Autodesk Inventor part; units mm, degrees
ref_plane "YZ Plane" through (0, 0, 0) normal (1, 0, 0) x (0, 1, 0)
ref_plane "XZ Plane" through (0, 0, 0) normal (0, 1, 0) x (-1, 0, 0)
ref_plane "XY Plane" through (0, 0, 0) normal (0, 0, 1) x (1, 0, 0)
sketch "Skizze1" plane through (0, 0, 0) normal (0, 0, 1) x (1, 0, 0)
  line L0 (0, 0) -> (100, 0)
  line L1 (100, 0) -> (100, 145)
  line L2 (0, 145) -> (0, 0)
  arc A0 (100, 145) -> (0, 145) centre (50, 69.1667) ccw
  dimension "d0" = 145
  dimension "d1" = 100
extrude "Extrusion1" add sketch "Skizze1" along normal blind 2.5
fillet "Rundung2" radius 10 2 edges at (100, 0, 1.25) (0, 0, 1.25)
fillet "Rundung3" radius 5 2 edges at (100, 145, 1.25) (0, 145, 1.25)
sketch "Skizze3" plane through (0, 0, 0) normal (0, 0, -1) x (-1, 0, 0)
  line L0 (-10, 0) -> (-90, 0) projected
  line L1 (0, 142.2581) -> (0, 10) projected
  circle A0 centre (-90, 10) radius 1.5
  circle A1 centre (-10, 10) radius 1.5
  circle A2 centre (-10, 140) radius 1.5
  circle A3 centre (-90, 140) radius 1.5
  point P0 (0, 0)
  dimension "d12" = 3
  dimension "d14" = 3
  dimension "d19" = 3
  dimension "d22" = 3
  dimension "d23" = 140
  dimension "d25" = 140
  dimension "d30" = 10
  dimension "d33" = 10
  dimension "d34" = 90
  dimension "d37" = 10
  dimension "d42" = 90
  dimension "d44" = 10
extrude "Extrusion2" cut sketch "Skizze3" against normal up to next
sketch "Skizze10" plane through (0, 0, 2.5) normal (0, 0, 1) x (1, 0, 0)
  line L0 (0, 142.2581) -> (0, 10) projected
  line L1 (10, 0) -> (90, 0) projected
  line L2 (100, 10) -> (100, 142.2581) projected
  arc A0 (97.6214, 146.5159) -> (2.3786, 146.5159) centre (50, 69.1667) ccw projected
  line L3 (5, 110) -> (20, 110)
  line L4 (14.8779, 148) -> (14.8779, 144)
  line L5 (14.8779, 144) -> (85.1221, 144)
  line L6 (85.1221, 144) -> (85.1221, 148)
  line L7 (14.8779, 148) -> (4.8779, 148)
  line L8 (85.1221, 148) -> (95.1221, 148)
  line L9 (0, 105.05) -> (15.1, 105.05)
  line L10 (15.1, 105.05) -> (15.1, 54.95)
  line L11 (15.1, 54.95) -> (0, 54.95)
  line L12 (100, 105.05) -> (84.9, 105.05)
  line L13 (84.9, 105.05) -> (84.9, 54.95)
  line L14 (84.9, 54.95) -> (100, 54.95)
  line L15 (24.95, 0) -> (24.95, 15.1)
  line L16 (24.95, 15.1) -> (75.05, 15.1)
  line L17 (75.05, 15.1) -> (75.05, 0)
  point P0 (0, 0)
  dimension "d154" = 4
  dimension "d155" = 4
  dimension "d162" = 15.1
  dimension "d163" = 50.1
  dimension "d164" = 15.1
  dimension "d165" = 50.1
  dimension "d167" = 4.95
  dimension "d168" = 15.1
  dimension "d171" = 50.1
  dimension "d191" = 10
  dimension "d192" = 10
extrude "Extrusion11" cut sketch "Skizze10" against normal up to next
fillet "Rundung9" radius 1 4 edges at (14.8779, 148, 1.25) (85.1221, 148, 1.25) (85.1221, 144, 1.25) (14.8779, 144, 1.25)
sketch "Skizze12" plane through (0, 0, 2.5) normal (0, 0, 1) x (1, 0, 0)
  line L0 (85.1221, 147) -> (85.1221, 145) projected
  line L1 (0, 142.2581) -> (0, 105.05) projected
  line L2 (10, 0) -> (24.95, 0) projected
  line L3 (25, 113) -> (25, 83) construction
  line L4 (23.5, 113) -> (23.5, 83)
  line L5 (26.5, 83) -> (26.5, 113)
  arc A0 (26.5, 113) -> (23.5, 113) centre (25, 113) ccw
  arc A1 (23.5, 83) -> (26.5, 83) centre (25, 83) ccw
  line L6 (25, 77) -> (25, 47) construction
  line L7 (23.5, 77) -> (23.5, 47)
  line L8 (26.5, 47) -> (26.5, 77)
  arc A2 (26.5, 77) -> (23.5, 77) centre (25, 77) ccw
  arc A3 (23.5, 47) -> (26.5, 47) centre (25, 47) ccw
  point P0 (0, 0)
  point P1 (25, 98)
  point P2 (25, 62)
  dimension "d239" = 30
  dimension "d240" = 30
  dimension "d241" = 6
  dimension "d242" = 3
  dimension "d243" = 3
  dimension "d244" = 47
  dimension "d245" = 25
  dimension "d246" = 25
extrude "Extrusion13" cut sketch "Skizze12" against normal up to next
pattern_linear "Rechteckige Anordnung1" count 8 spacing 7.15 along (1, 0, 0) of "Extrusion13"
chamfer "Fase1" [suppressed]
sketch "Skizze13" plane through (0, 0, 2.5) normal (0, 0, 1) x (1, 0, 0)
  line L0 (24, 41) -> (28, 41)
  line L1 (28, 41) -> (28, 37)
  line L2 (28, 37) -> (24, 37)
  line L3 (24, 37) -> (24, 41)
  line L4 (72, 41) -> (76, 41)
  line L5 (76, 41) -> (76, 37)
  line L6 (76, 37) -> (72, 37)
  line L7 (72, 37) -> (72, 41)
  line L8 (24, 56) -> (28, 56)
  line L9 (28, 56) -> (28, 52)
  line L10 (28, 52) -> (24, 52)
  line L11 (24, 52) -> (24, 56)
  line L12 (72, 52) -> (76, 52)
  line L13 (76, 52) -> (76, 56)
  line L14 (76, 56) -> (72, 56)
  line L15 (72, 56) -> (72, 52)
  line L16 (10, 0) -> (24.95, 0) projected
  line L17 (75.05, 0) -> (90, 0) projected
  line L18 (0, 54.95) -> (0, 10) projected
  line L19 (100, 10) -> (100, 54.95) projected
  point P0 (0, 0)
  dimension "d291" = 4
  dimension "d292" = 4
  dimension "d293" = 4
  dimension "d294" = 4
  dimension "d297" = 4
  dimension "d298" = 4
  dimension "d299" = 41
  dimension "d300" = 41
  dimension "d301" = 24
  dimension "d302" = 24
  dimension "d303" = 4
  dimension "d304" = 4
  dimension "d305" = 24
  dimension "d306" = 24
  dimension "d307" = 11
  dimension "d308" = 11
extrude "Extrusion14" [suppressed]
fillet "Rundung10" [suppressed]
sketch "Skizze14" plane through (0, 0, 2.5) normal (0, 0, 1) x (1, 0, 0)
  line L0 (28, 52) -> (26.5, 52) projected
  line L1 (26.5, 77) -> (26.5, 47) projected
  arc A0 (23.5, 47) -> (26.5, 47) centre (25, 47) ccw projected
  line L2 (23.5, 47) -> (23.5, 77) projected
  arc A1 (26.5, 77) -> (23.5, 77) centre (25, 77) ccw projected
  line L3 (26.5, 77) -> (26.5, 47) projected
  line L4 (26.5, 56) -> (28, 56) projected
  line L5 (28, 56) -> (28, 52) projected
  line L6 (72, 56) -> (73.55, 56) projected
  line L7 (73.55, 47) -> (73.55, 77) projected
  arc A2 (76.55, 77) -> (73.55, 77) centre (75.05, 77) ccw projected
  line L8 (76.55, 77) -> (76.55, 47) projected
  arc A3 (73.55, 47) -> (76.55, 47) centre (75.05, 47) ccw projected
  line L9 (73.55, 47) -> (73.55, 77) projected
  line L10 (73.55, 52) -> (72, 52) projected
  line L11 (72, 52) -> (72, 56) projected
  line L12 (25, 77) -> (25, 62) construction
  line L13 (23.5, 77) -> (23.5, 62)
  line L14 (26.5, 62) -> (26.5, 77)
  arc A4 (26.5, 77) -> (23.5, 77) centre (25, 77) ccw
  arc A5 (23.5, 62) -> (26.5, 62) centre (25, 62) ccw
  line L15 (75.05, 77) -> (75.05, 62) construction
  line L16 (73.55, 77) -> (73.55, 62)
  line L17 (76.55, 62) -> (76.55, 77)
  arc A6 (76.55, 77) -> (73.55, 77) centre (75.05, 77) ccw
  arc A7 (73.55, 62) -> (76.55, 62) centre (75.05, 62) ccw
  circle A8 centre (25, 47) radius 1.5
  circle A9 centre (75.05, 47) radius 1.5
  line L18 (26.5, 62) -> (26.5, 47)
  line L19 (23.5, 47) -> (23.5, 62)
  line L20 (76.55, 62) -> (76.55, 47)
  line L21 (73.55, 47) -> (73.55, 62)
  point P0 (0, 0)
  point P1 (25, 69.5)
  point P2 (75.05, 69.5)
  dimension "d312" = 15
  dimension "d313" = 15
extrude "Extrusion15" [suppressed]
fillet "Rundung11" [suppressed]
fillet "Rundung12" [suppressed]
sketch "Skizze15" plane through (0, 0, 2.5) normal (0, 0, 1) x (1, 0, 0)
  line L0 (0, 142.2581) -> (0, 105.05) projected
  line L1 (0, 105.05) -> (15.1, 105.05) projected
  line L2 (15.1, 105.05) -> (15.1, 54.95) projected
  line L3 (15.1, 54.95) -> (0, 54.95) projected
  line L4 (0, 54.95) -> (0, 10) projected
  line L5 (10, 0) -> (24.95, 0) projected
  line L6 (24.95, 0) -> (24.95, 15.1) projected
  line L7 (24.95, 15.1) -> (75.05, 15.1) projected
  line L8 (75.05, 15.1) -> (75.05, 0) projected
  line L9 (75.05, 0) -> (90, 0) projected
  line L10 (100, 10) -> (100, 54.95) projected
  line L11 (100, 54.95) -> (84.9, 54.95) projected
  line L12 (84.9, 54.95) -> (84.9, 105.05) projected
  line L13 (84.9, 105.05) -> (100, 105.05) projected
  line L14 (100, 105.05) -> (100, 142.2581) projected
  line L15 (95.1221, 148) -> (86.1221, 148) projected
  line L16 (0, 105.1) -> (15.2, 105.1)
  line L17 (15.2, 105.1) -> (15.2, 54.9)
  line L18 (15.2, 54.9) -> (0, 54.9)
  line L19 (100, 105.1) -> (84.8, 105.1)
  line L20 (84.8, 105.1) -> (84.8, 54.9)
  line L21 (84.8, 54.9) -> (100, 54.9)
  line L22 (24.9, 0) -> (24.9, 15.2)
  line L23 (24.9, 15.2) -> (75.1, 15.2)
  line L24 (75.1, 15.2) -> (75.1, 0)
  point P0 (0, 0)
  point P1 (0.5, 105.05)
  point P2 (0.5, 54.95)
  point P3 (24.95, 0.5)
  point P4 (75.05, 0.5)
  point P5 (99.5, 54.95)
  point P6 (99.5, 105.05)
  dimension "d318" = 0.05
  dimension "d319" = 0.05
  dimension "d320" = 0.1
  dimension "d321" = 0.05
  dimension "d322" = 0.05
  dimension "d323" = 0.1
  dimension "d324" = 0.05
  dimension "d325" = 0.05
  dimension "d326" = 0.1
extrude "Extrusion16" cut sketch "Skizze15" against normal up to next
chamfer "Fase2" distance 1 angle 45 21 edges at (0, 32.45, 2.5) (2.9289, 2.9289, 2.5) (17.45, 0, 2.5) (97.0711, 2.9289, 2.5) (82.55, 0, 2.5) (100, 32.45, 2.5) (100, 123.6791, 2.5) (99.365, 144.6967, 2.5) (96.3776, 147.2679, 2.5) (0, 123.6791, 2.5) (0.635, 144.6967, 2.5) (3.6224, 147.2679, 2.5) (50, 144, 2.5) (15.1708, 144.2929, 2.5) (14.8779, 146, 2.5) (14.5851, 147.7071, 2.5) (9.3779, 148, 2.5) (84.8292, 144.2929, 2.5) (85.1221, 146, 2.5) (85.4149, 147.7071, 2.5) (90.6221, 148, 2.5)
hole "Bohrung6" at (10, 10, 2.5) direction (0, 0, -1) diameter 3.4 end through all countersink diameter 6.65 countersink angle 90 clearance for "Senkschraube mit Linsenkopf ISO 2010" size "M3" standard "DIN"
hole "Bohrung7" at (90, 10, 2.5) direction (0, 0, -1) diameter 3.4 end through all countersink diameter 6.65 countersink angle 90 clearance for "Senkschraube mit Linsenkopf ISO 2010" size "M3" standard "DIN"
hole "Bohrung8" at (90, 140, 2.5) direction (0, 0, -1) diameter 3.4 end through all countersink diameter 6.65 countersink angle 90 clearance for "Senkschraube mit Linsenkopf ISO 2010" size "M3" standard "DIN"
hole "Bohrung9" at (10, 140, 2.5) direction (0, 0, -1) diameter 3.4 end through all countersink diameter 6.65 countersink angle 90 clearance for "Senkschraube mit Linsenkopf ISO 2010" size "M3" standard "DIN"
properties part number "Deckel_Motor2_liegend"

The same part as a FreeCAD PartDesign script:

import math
import FreeCAD as App
import Part
import Sketcher
Q = App.Units.Quantity


def edges_at(feature, points):
    """Names of the edges that pass closest to the given points."""
    edges = feature.Shape.Edges
    near = lambda p: min(range(len(edges)), key=lambda i: edges[i].distToShape(Part.Vertex(*p))[0])
    return sorted({f"Edge{near(p) + 1}" for p in points})

doc = App.newDocument("Part")
params = doc.addObject("Spreadsheet::Sheet", "Params")
for row, (alias, value) in enumerate([
    ("sketch1_width", "100 mm"),
    ("sketch1_height", "145 mm"),
    ("pad1_length", "2.5 mm"),
    ("fillet_radius", "10 mm"),
    ("fillet2_radius", "5 mm"),
    ("sketch2_diameter", "3 mm"),
    ("pocket1_length", "2.5 mm"),
    ("sketch3_width", "10 mm"),
    ("sketch3_height", "4 mm"),
    ("sketch3_width2", "15.1 mm"),
    ("sketch3_width3", "50.1 mm"),
    ("fillet3_radius", "1 mm"),
    ("sketch4_radius", "1.5 mm"),
    ("sketch4_height", "30 mm"),
    ("linearpattern_pitch", "7.15 mm"),
    ("sketch5_width", "0.05 mm"),
    ("sketch5_width2", "15.2 mm"),
    ("sketch5_width3", "50.1 mm"),
    ("chamfer_size", "1 mm"),
    ("sketch6_diameter", "3.4 mm"),
    ("hole_diameter", "3.4 mm"),
    ("hole_csink_diameter", "6.65 mm"),
    ("sketch7_diameter", "3.4 mm"),
    ("hole2_diameter", "3.4 mm"),
    ("hole2_csink_diameter", "6.65 mm"),
    ("sketch8_diameter", "3.4 mm"),
    ("hole3_diameter", "3.4 mm"),
    ("hole3_csink_diameter", "6.65 mm"),
    ("sketch9_diameter", "3.4 mm"),
    ("hole4_diameter", "3.4 mm"),
    ("hole4_csink_diameter", "6.65 mm"),
], start=1):
    params.set(f"A{row}", alias)
    params.set(f"B{row}", "=" + value)
    params.setAlias(f"B{row}", alias)

body = doc.addObject("PartDesign::Body", "Body")

# Sketch on XY plane
sketch1 = body.newObject("Sketcher::SketchObject", "Sketch")
sketch1.AttachmentSupport = (doc.getObject("XY_Plane"), [""])
sketch1.MapMode = "FlatFace"
sketch1.addGeometry([
    Part.LineSegment(App.Vector(0, 145, 0), App.Vector(0, 0, 0)),
    Part.LineSegment(App.Vector(0, 0, 0), App.Vector(100, 0, 0)),
    Part.LineSegment(App.Vector(100, 0, 0), App.Vector(100, 145, 0)),
    Part.ArcOfCircle(Part.Circle(App.Vector(50, 69, 0), App.Vector(0, 0, 1), 91), math.radians(57), math.radians(123)),
], False)
sketch1.addConstraint([
    Sketcher.Constraint("Coincident", 0, 2, 1, 1),
    Sketcher.Constraint("Coincident", 1, 2, 2, 1),
    Sketcher.Constraint("Coincident", 2, 2, 3, 1),
    Sketcher.Constraint("Coincident", 3, 2, 0, 1),
    Sketcher.Constraint("Vertical", 0),
    Sketcher.Constraint("Horizontal", 1),
    Sketcher.Constraint("Vertical", 2),
    Sketcher.Constraint("Coincident", 0, 2, -1, 1),
    Sketcher.Constraint("Horizontal", 2, 2, 3, 2),
    Sketcher.Constraint("DistanceX", 1, 1, 1, 2, Q("100 mm")),
    Sketcher.Constraint("DistanceY", 0, 2, 0, 1, Q("145 mm")),
    Sketcher.Constraint("Radius", 3, Q("90.8333 mm")),
])
sketch1.setExpression("Constraints[9]", "Params.sketch1_width")
sketch1.setExpression("Constraints[10]", "Params.sketch1_height")
pad1 = body.newObject("PartDesign::Pad", "Pad")
pad1.Profile = sketch1
pad1.setExpression("Length", "Params.pad1_length")
doc.recompute()

fillet = body.newObject("PartDesign::Fillet", "Fillet")
fillet.Base = (pad1, edges_at(pad1, [(100, 0, 1.25), (0, 0, 1.25)]))
fillet.setExpression("Radius", "Params.fillet_radius")
doc.recompute()

fillet2 = body.newObject("PartDesign::Fillet", "Fillet001")
fillet2.Base = (fillet, edges_at(fillet, [(100, 145, 1.25), (0, 145, 1.25)]))
fillet2.setExpression("Radius", "Params.fillet2_radius")

# Sketch on XY plane
sketch2 = body.newObject("Sketcher::SketchObject", "Sketch001")
sketch2.AttachmentSupport = (doc.getObject("XY_Plane"), [""])
sketch2.MapMode = "FlatFace"
sketch2.addGeometry([
    Part.Circle(App.Vector(90, 10, 0), App.Vector(0, 0, 1), 1.5),
    Part.Circle(App.Vector(10, 10, 0), App.Vector(0, 0, 1), 1.5),
    Part.Circle(App.Vector(10, 140, 0), App.Vector(0, 0, 1), 1.5),
    Part.Circle(App.Vector(90, 140, 0), App.Vector(0, 0, 1), 1.5),
], False)
sketch2.addConstraint([
    Sketcher.Constraint("Equal", 0, 1),
    Sketcher.Constraint("Equal", 1, 2),
    Sketcher.Constraint("Equal", 2, 3),
    Sketcher.Constraint("Horizontal", 0, 3, 1, 3),
    Sketcher.Constraint("Horizontal", 2, 3, 3, 3),
    Sketcher.Constraint("Vertical", 1, 3, 2, 3),
    Sketcher.Constraint("Vertical", 0, 3, 3, 3),
    Sketcher.Constraint("Diameter", 0, Q("3 mm")),
    Sketcher.Constraint("DistanceX", -1, 1, 0, 3, Q("90 mm")),
    Sketcher.Constraint("DistanceY", -1, 1, 0, 3, Q("10 mm")),
    Sketcher.Constraint("DistanceX", -1, 1, 1, 3, Q("10 mm")),
    Sketcher.Constraint("DistanceY", -1, 1, 2, 3, Q("140 mm")),
])
sketch2.setExpression("Constraints[7]", "Params.sketch2_diameter")
pocket1 = body.newObject("PartDesign::Pocket", "Pocket")
pocket1.Profile = sketch2
pocket1.setExpression("Length", "Params.pocket1_length")
pocket1.Reversed = True

# Sketch on XY plane
sketch3 = body.newObject("Sketcher::SketchObject", "Sketch002")
sketch3.AttachmentSupport = (doc.getObject("XY_Plane"), [""])
sketch3.MapMode = "FlatFace"
sketch3.AttachmentOffset = App.Placement(App.Vector(0, 0, 2.5), App.Rotation())
sketch3.addGeometry([
    Part.LineSegment(App.Vector(15.1, 105, 0), App.Vector(0, 105, 0)),  # 0
    Part.LineSegment(App.Vector(0, 105, 0), App.Vector(0, 55, 0)),  # 1
    Part.LineSegment(App.Vector(0, 55, 0), App.Vector(15.1, 55, 0)),  # 2
    Part.LineSegment(App.Vector(15.1, 55, 0), App.Vector(15.1, 105, 0)),  # 3
    Part.LineSegment(App.Vector(24.9, 15.1, 0), App.Vector(24.9, 0, 0)),  # 4
    Part.LineSegment(App.Vector(24.9, 0, 0), App.Vector(75, 0, 0)),  # 5
    Part.LineSegment(App.Vector(75, 0, 0), App.Vector(75, 15.1, 0)),  # 6
    Part.LineSegment(App.Vector(75, 15.1, 0), App.Vector(24.9, 15.1, 0)),  # 7
    Part.LineSegment(App.Vector(84.9, 55, 0), App.Vector(100, 55, 0)),  # 8
    Part.LineSegment(App.Vector(100, 55, 0), App.Vector(100, 105, 0)),  # 9
    Part.LineSegment(App.Vector(100, 105, 0), App.Vector(84.9, 105, 0)),  # 10
    Part.LineSegment(App.Vector(84.9, 105, 0), App.Vector(84.9, 55, 0)),  # 11
    Part.LineSegment(App.Vector(85.1, 148, 0), App.Vector(95.1, 148, 0)),  # 12
    Part.ArcOfCircle(Part.Circle(App.Vector(50, 69.2, 0), App.Vector(0, 0, 1), 90.8), math.radians(60), math.radians(120)),  # 13
    Part.LineSegment(App.Vector(4.9, 148, 0), App.Vector(14.9, 148, 0)),  # 14
    Part.LineSegment(App.Vector(14.9, 148, 0), App.Vector(14.9, 144, 0)),  # 15
    Part.LineSegment(App.Vector(14.9, 144, 0), App.Vector(85.1, 144, 0)),  # 16
    Part.LineSegment(App.Vector(85.1, 144, 0), App.Vector(85.1, 148, 0)),  # 17
], False)
sketch3.addConstraint([
    Sketcher.Constraint("Coincident", 0, 2, 1, 1),
    Sketcher.Constraint("Coincident", 1, 2, 2, 1),
    Sketcher.Constraint("Coincident", 2, 2, 3, 1),
    Sketcher.Constraint("Coincident", 3, 2, 0, 1),
    Sketcher.Constraint("Coincident", 4, 2, 5, 1),
    Sketcher.Constraint("Coincident", 5, 2, 6, 1),
    Sketcher.Constraint("Coincident", 6, 2, 7, 1),
    Sketcher.Constraint("Coincident", 7, 2, 4, 1),
    Sketcher.Constraint("Coincident", 8, 2, 9, 1),
    Sketcher.Constraint("Coincident", 9, 2, 10, 1),
    Sketcher.Constraint("Coincident", 10, 2, 11, 1),
    Sketcher.Constraint("Coincident", 11, 2, 8, 1),
    Sketcher.Constraint("Coincident", 12, 2, 13, 1),
    Sketcher.Constraint("Coincident", 13, 2, 14, 1),
    Sketcher.Constraint("Coincident", 14, 2, 15, 1),
    Sketcher.Constraint("Coincident", 15, 2, 16, 1),
    Sketcher.Constraint("Coincident", 16, 2, 17, 1),
    Sketcher.Constraint("Coincident", 17, 2, 12, 1),
    Sketcher.Constraint("Horizontal", 0),
    Sketcher.Constraint("Vertical", 1),
    Sketcher.Constraint("Horizontal", 2),
    Sketcher.Constraint("Vertical", 3),
    Sketcher.Constraint("Vertical", 4),
    Sketcher.Constraint("Horizontal", 5),
    Sketcher.Constraint("Vertical", 6),
    Sketcher.Constraint("Horizontal", 7),
    Sketcher.Constraint("Horizontal", 8),
    Sketcher.Constraint("Vertical", 9),
    Sketcher.Constraint("Horizontal", 10),
    Sketcher.Constraint("Vertical", 11),
    Sketcher.Constraint("Horizontal", 12),
    Sketcher.Constraint("Horizontal", 14),
    Sketcher.Constraint("Vertical", 15),
    Sketcher.Constraint("Horizontal", 16),
    Sketcher.Constraint("Vertical", 17),
    Sketcher.Constraint("PointOnObject", 0, 2, -2),
    Sketcher.Constraint("PointOnObject", 4, 2, -1),
    Sketcher.Constraint("Horizontal", 2, 2, 8, 2),
    Sketcher.Constraint("Horizontal", 3, 2, 9, 2),
    Sketcher.Constraint("Horizontal", 12, 2, 13, 2),
    Sketcher.Constraint("Equal", 2, 8),
    Sketcher.Constraint("Equal", 12, 14),
    Sketcher.Constraint("Equal", 7, 1),
    Sketcher.Constraint("Equal", 10, 4),
    Sketcher.Constraint("DistanceX", 12, 1, 12, 2, Q("10 mm")),
    Sketcher.Constraint("DistanceY", 15, 2, 15, 1, Q("4 mm")),
    Sketcher.Constraint("DistanceX", 0, 2, 0, 1, Q("15.1 mm")),
    Sketcher.Constraint("DistanceX", 5, 1, 5, 2, Q("50.1 mm")),
    Sketcher.Constraint("DistanceX", -1, 1, 13, 3, Q("50 mm")),
    Sketcher.Constraint("DistanceX", -1, 1, 8, 2, Q("100 mm")),
    Sketcher.Constraint("DistanceY", -1, 1, 12, 2, Q("148 mm")),
    Sketcher.Constraint("Radius", 13, Q("90.8333 mm")),
    Sketcher.Constraint("DistanceY", -1, 1, 0, 2, Q("105.05 mm")),
    Sketcher.Constraint("DistanceX", -1, 1, 4, 2, Q("24.95 mm")),
    Sketcher.Constraint("DistanceX", 16, 1, 16, 2, Q("70.2442 mm")),
])
sketch3.setExpression("Constraints[44]", "Params.sketch3_width")
sketch3.setExpression("Constraints[45]", "Params.sketch3_height")
sketch3.setExpression("Constraints[46]", "Params.sketch3_width2")
sketch3.setExpression("Constraints[47]", "Params.sketch3_width3")
pocket2 = body.newObject("PartDesign::Pocket", "Pocket001")
pocket2.Profile = sketch3
pocket2.Type = "UpToFirst"
doc.recompute()

fillet3 = body.newObject("PartDesign::Fillet", "Fillet002")
fillet3.Base = (pocket2, edges_at(pocket2, [
    (14.878, 148, 1.25),
    (85.122, 148, 1.25),
    (85.122, 144, 1.25),
    (14.878, 144, 1.25),
]))
fillet3.setExpression("Radius", "Params.fillet3_radius")

# Sketch on XY plane
sketch4 = body.newObject("Sketcher::SketchObject", "Sketch003")
sketch4.AttachmentSupport = (doc.getObject("XY_Plane"), [""])
sketch4.MapMode = "FlatFace"
sketch4.AttachmentOffset = App.Placement(App.Vector(0, 0, 2.5), App.Rotation())
sketch4.addGeometry([
    Part.ArcOfCircle(Part.Circle(App.Vector(25, 113, 0), App.Vector(0, 0, 1), 1.5), math.radians(0), math.radians(180)),  # 0
    Part.LineSegment(App.Vector(23.5, 113, 0), App.Vector(23.5, 83, 0)),  # 1
    Part.ArcOfCircle(Part.Circle(App.Vector(25, 83, 0), App.Vector(0, 0, 1), 1.5), math.radians(180), math.radians(360)),  # 2
    Part.LineSegment(App.Vector(26.5, 83, 0), App.Vector(26.5, 113, 0)),  # 3
    Part.ArcOfCircle(Part.Circle(App.Vector(25, 77, 0), App.Vector(0, 0, 1), 1.5), math.radians(0), math.radians(180)),  # 4
    Part.LineSegment(App.Vector(23.5, 77, 0), App.Vector(23.5, 47, 0)),  # 5
    Part.ArcOfCircle(Part.Circle(App.Vector(25, 47, 0), App.Vector(0, 0, 1), 1.5), math.radians(180), math.radians(360)),  # 6
    Part.LineSegment(App.Vector(26.5, 47, 0), App.Vector(26.5, 77, 0)),  # 7
], False)
sketch4.addConstraint([
    Sketcher.Constraint("Tangent", 0, 2, 1, 1),
    Sketcher.Constraint("Tangent", 1, 2, 2, 1),
    Sketcher.Constraint("Tangent", 2, 2, 3, 1),
    Sketcher.Constraint("Tangent", 3, 2, 0, 1),
    Sketcher.Constraint("Tangent", 4, 2, 5, 1),
    Sketcher.Constraint("Tangent", 5, 2, 6, 1),
    Sketcher.Constraint("Tangent", 6, 2, 7, 1),
    Sketcher.Constraint("Tangent", 7, 2, 4, 1),
    Sketcher.Constraint("Vertical", 1),
    Sketcher.Constraint("Vertical", 3),
    Sketcher.Constraint("Vertical", 5),
    Sketcher.Constraint("Vertical", 7),
    Sketcher.Constraint("Equal", 2, 4),
    Sketcher.Constraint("Vertical", 2, 3, 4, 3),
    Sketcher.Constraint("Equal", 3, 5),
    Sketcher.Constraint("Radius", 0, Q("1.5 mm")),
    Sketcher.Constraint("DistanceY", 1, 2, 1, 1, Q("30 mm")),
    Sketcher.Constraint("DistanceX", -1, 1, 0, 3, Q("25 mm")),
    Sketcher.Constraint("DistanceY", -1, 1, 6, 3, Q("47 mm")),
    Sketcher.Constraint("DistanceY", 4, 3, 2, 3, Q("6 mm")),
])
sketch4.setExpression("Constraints[15]", "Params.sketch4_radius")
sketch4.setExpression("Constraints[16]", "Params.sketch4_height")
pocket3 = body.newObject("PartDesign::Pocket", "Pocket002")
pocket3.Profile = sketch4
pocket3.Type = "UpToFirst"
doc.recompute()

linearpattern = body.newObject("PartDesign::LinearPattern", "LinearPattern")
linearpattern.Originals = [pocket3]
linearpattern.Direction = (doc.getObject("X_Axis"), [""])
linearpattern.Mode = "offset"
linearpattern.setExpression("Offset", "Params.linearpattern_pitch")
linearpattern.Occurrences = 8
body.Tip = linearpattern

# Sketch on XY plane
sketch5 = body.newObject("Sketcher::SketchObject", "Sketch004")
sketch5.AttachmentSupport = (doc.getObject("XY_Plane"), [""])
sketch5.MapMode = "FlatFace"
sketch5.AttachmentOffset = App.Placement(App.Vector(0, 0, 2.5), App.Rotation())
sketch5.addGeometry([
    Part.LineSegment(App.Vector(15.2, 105.1, 0), App.Vector(0, 105.1, 0)),  # 0
    Part.LineSegment(App.Vector(0, 105.1, 0), App.Vector(0, 105.05, 0)),  # 1
    Part.LineSegment(App.Vector(0, 105.05, 0), App.Vector(15.1, 105.05, 0)),  # 2
    Part.LineSegment(App.Vector(15.1, 105.05, 0), App.Vector(15.1, 54.95, 0)),  # 3
    Part.LineSegment(App.Vector(15.1, 54.95, 0), App.Vector(0, 54.95, 0)),  # 4
    Part.LineSegment(App.Vector(0, 54.95, 0), App.Vector(0, 54.9, 0)),  # 5
    Part.LineSegment(App.Vector(0, 54.9, 0), App.Vector(15.2, 54.9, 0)),  # 6
    Part.LineSegment(App.Vector(15.2, 54.9, 0), App.Vector(15.2, 105.1, 0)),  # 7
    Part.LineSegment(App.Vector(24.9, 15.2, 0), App.Vector(24.9, 0, 0)),  # 8
    Part.LineSegment(App.Vector(24.9, 0, 0), App.Vector(24.95, 0, 0)),  # 9
    Part.LineSegment(App.Vector(24.95, 0, 0), App.Vector(24.95, 15.1, 0)),  # 10
    Part.LineSegment(App.Vector(24.95, 15.1, 0), App.Vector(75.05, 15.1, 0)),  # 11
    Part.LineSegment(App.Vector(75.05, 15.1, 0), App.Vector(75.05, 0, 0)),  # 12
    Part.LineSegment(App.Vector(75.05, 0, 0), App.Vector(75.1, 0, 0)),  # 13
    Part.LineSegment(App.Vector(75.1, 0, 0), App.Vector(75.1, 15.2, 0)),  # 14
    Part.LineSegment(App.Vector(75.1, 15.2, 0), App.Vector(24.9, 15.2, 0)),  # 15
    Part.LineSegment(App.Vector(84.8, 54.9, 0), App.Vector(100, 54.9, 0)),  # 16
    Part.LineSegment(App.Vector(100, 54.9, 0), App.Vector(100, 54.95, 0)),  # 17
    Part.LineSegment(App.Vector(100, 54.95, 0), App.Vector(84.9, 54.95, 0)),  # 18
    Part.LineSegment(App.Vector(84.9, 54.95, 0), App.Vector(84.9, 105.05, 0)),  # 19
    Part.LineSegment(App.Vector(84.9, 105.05, 0), App.Vector(100, 105.05, 0)),  # 20
    Part.LineSegment(App.Vector(100, 105.05, 0), App.Vector(100, 105.1, 0)),  # 21
    Part.LineSegment(App.Vector(100, 105.1, 0), App.Vector(84.8, 105.1, 0)),  # 22
    Part.LineSegment(App.Vector(84.8, 105.1, 0), App.Vector(84.8, 54.9, 0)),  # 23
], False)
sketch5.addConstraint([
    Sketcher.Constraint("Coincident", 0, 2, 1, 1),
    Sketcher.Constraint("Coincident", 1, 2, 2, 1),
    Sketcher.Constraint("Coincident", 2, 2, 3, 1),
    Sketcher.Constraint("Coincident", 3, 2, 4, 1),
    Sketcher.Constraint("Coincident", 4, 2, 5, 1),
    Sketcher.Constraint("Coincident", 5, 2, 6, 1),
    Sketcher.Constraint("Coincident", 6, 2, 7, 1),
    Sketcher.Constraint("Coincident", 7, 2, 0, 1),
    Sketcher.Constraint("Coincident", 8, 2, 9, 1),
    Sketcher.Constraint("Coincident", 9, 2, 10, 1),
    Sketcher.Constraint("Coincident", 10, 2, 11, 1),
    Sketcher.Constraint("Coincident", 11, 2, 12, 1),
    Sketcher.Constraint("Coincident", 12, 2, 13, 1),
    Sketcher.Constraint("Coincident", 13, 2, 14, 1),
    Sketcher.Constraint("Coincident", 14, 2, 15, 1),
    Sketcher.Constraint("Coincident", 15, 2, 8, 1),
    Sketcher.Constraint("Coincident", 16, 2, 17, 1),
    Sketcher.Constraint("Coincident", 17, 2, 18, 1),
    Sketcher.Constraint("Coincident", 18, 2, 19, 1),
    Sketcher.Constraint("Coincident", 19, 2, 20, 1),
    Sketcher.Constraint("Coincident", 20, 2, 21, 1),
    Sketcher.Constraint("Coincident", 21, 2, 22, 1),
    Sketcher.Constraint("Coincident", 22, 2, 23, 1),
    Sketcher.Constraint("Coincident", 23, 2, 16, 1),
    Sketcher.Constraint("Horizontal", 0),
    Sketcher.Constraint("Vertical", 1),
    Sketcher.Constraint("Horizontal", 2),
    Sketcher.Constraint("Vertical", 3),
    Sketcher.Constraint("Horizontal", 4),
    Sketcher.Constraint("Vertical", 5),
    Sketcher.Constraint("Horizontal", 6),
    Sketcher.Constraint("Vertical", 7),
    Sketcher.Constraint("Vertical", 8),
    Sketcher.Constraint("Horizontal", 9),
    Sketcher.Constraint("Vertical", 10),
    Sketcher.Constraint("Horizontal", 11),
    Sketcher.Constraint("Vertical", 12),
    Sketcher.Constraint("Horizontal", 13),
    Sketcher.Constraint("Vertical", 14),
    Sketcher.Constraint("Horizontal", 15),
    Sketcher.Constraint("Horizontal", 16),
    Sketcher.Constraint("Vertical", 17),
    Sketcher.Constraint("Horizontal", 18),
    Sketcher.Constraint("Vertical", 19),
    Sketcher.Constraint("Horizontal", 20),
    Sketcher.Constraint("Vertical", 21),
    Sketcher.Constraint("Horizontal", 22),
    Sketcher.Constraint("Vertical", 23),
    Sketcher.Constraint("PointOnObject", 0, 2, -2),
    Sketcher.Constraint("PointOnObject", 4, 2, -2),
    Sketcher.Constraint("PointOnObject", 8, 2, -1),
    Sketcher.Constraint("PointOnObject", 12, 2, -1),
    Sketcher.Constraint("Horizontal", 6, 2, 16, 2),
    Sketcher.Constraint("Horizontal", 4, 2, 17, 2),
    Sketcher.Constraint("Horizontal", 2, 2, 19, 2),
    Sketcher.Constraint("Horizontal", 7, 2, 21, 2),
    Sketcher.Constraint("Vertical", 17, 2, 20, 2),
    Sketcher.Constraint("Equal", 9, 13),
    Sketcher.Constraint("Equal", 6, 16),
    Sketcher.Constraint("Equal", 4, 18),
    Sketcher.Constraint("Equal", 13, 1),
    Sketcher.Constraint("Equal", 11, 3),
    Sketcher.Constraint("Equal", 1, 5),
    Sketcher.Constraint("Equal", 22, 8),
    Sketcher.Constraint("Equal", 20, 10),
    Sketcher.Constraint("DistanceX", 9, 1, 9, 2, Q("0.05 mm")),
    Sketcher.Constraint("DistanceX", 3, 2, 6, 2, Q("0.1 mm")),
    Sketcher.Constraint("DistanceX", 0, 2, 0, 1, Q("15.2 mm")),
    Sketcher.Constraint("DistanceX", 11, 1, 11, 2, Q("50.1 mm")),
    Sketcher.Constraint("DistanceX", -1, 1, 16, 2, Q("100 mm")),
    Sketcher.Constraint("DistanceY", -1, 1, 0, 2, Q("105.1 mm")),
    Sketcher.Constraint("DistanceX", -1, 1, 8, 2, Q("24.9 mm")),
])
sketch5.setExpression("Constraints[65]", "Params.sketch5_width")
sketch5.setExpression("Constraints[67]", "Params.sketch5_width2")
sketch5.setExpression("Constraints[68]", "Params.sketch5_width3")
pocket4 = body.newObject("PartDesign::Pocket", "Pocket003")
pocket4.Profile = sketch5
pocket4.Type = "UpToFirst"
doc.recompute()

chamfer = body.newObject("PartDesign::Chamfer", "Chamfer")
chamfer.Base = (pocket4, edges_at(pocket4, [
    (0, 32.45, 2.5),
    (2.929, 2.929, 2.5),
    (17.45, 0, 2.5),
    (97.071, 2.929, 2.5),
    (82.55, 0, 2.5),
    (100, 32.45, 2.5),
    (100, 123.679, 2.5),
    (99.365, 144.697, 2.5),
    (96.378, 147.268, 2.5),
    (0, 123.679, 2.5),
    (0.635, 144.697, 2.5),
    (3.622, 147.268, 2.5),
    (50, 144, 2.5),
    (15.171, 144.293, 2.5),
    (14.878, 146, 2.5),
    (14.585, 147.707, 2.5),
    (9.378, 148, 2.5),
    (84.829, 144.293, 2.5),
    (85.122, 146, 2.5),
    (85.415, 147.707, 2.5),
    (90.622, 148, 2.5),
]))
chamfer.setExpression("Size", "Params.chamfer_size")

# Sketch on XY plane
sketch6 = body.newObject("Sketcher::SketchObject", "Sketch005")
sketch6.AttachmentSupport = (doc.getObject("XY_Plane"), [""])
sketch6.MapMode = "FlatFace"
sketch6.AttachmentOffset = App.Placement(App.Vector(0, 0, 2.5), App.Rotation())
sketch6.addGeometry(Part.Circle(App.Vector(10, 10, 0), App.Vector(0, 0, 1), 1.7), False)
sketch6.addConstraint([
    Sketcher.Constraint("Diameter", 0, Q("3.4 mm")),
    Sketcher.Constraint("DistanceX", -1, 1, 0, 3, Q("10 mm")),
    Sketcher.Constraint("DistanceY", -1, 1, 0, 3, Q("10 mm")),
])
sketch6.setExpression("Constraints[0]", "Params.sketch6_diameter")
doc.recompute()
hole = body.newObject("PartDesign::Hole", "Hole")
hole.Profile = sketch6
hole.ThreadType = "None"
hole.setExpression("Diameter", "Params.hole_diameter")
hole.DepthType = "ThroughAll"
hole.HoleCutType = "Countersink"
hole.setExpression("HoleCutDiameter", "Params.hole_csink_diameter")
hole.HoleCutCountersinkAngle = 90

# Sketch on XY plane
sketch7 = body.newObject("Sketcher::SketchObject", "Sketch006")
sketch7.AttachmentSupport = (doc.getObject("XY_Plane"), [""])
sketch7.MapMode = "FlatFace"
sketch7.AttachmentOffset = App.Placement(App.Vector(0, 0, 2.5), App.Rotation())
sketch7.addGeometry(Part.Circle(App.Vector(90, 10, 0), App.Vector(0, 0, 1), 1.7), False)
sketch7.addConstraint([
    Sketcher.Constraint("Diameter", 0, Q("3.4 mm")),
    Sketcher.Constraint("DistanceX", -1, 1, 0, 3, Q("90 mm")),
    Sketcher.Constraint("DistanceY", -1, 1, 0, 3, Q("10 mm")),
])
sketch7.setExpression("Constraints[0]", "Params.sketch7_diameter")
doc.recompute()
hole2 = body.newObject("PartDesign::Hole", "Hole001")
hole2.Profile = sketch7
hole2.ThreadType = "None"
hole2.setExpression("Diameter", "Params.hole2_diameter")
hole2.DepthType = "ThroughAll"
hole2.HoleCutType = "Countersink"
hole2.setExpression("HoleCutDiameter", "Params.hole2_csink_diameter")
hole2.HoleCutCountersinkAngle = 90

# Sketch on XY plane
sketch8 = body.newObject("Sketcher::SketchObject", "Sketch007")
sketch8.AttachmentSupport = (doc.getObject("XY_Plane"), [""])
sketch8.MapMode = "FlatFace"
sketch8.AttachmentOffset = App.Placement(App.Vector(0, 0, 2.5), App.Rotation())
sketch8.addGeometry(Part.Circle(App.Vector(90, 140, 0), App.Vector(0, 0, 1), 1.7), False)
sketch8.addConstraint([
    Sketcher.Constraint("Diameter", 0, Q("3.4 mm")),
    Sketcher.Constraint("DistanceX", -1, 1, 0, 3, Q("90 mm")),
    Sketcher.Constraint("DistanceY", -1, 1, 0, 3, Q("140 mm")),
])
sketch8.setExpression("Constraints[0]", "Params.sketch8_diameter")
doc.recompute()
hole3 = body.newObject("PartDesign::Hole", "Hole002")
hole3.Profile = sketch8
hole3.ThreadType = "None"
hole3.setExpression("Diameter", "Params.hole3_diameter")
hole3.DepthType = "ThroughAll"
hole3.HoleCutType = "Countersink"
hole3.setExpression("HoleCutDiameter", "Params.hole3_csink_diameter")
hole3.HoleCutCountersinkAngle = 90

# Sketch on XY plane
sketch9 = body.newObject("Sketcher::SketchObject", "Sketch008")
sketch9.AttachmentSupport = (doc.getObject("XY_Plane"), [""])
sketch9.MapMode = "FlatFace"
sketch9.AttachmentOffset = App.Placement(App.Vector(0, 0, 2.5), App.Rotation())
sketch9.addGeometry(Part.Circle(App.Vector(10, 140, 0), App.Vector(0, 0, 1), 1.7), False)
sketch9.addConstraint([
    Sketcher.Constraint("Diameter", 0, Q("3.4 mm")),
    Sketcher.Constraint("DistanceX", -1, 1, 0, 3, Q("10 mm")),
    Sketcher.Constraint("DistanceY", -1, 1, 0, 3, Q("140 mm")),
])
sketch9.setExpression("Constraints[0]", "Params.sketch9_diameter")
doc.recompute()
hole4 = body.newObject("PartDesign::Hole", "Hole003")
hole4.Profile = sketch9
hole4.ThreadType = "None"
hole4.setExpression("Diameter", "Params.hole4_diameter")
hole4.DepthType = "ThroughAll"
hole4.HoleCutType = "Countersink"
hole4.setExpression("HoleCutDiameter", "Params.hole4_csink_diameter")
hole4.HoleCutCountersinkAngle = 90

doc.recompute()
